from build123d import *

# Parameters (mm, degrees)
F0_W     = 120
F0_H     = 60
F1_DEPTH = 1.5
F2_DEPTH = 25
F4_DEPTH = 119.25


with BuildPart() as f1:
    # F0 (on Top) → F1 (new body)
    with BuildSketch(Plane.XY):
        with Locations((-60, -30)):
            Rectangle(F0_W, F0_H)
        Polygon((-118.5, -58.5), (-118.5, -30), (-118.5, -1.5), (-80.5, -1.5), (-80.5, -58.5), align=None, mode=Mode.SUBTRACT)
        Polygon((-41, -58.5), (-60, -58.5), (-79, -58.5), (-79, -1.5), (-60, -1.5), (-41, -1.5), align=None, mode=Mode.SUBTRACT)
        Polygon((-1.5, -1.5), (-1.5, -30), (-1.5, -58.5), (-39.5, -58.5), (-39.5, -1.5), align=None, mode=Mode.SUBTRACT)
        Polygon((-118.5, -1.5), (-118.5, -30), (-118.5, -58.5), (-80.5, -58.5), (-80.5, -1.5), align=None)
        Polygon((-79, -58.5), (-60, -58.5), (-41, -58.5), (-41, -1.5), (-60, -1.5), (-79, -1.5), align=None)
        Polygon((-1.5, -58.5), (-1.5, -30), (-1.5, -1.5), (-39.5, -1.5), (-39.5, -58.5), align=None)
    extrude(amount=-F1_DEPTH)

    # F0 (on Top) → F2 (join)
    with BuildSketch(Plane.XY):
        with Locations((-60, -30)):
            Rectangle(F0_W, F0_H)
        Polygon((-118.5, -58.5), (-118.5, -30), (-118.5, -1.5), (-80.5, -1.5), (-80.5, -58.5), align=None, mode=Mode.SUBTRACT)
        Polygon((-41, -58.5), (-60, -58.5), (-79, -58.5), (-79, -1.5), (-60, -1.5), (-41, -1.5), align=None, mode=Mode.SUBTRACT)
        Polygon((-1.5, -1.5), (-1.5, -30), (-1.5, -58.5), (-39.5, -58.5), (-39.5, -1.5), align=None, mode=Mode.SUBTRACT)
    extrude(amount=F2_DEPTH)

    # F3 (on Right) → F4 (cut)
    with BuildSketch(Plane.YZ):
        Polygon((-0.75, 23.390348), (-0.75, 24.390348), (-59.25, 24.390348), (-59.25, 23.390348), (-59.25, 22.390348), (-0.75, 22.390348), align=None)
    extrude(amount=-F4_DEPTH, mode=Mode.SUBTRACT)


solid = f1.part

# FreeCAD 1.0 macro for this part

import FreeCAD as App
import Part
import Sketcher
Q = App.Units.Quantity

doc = App.newDocument("Part")
body = doc.addObject("PartDesign::Body", "Body")

# Sketch on XY plane
sketch1 = doc.addObject("Sketcher::SketchObject", "Sketch")
body.addObject(sketch1)
sketch1.AttachmentSupport = (doc.XY_Plane, [""])
sketch1.MapMode = "FlatFace"
sketch1.addGeometry(Part.LineSegment(App.Vector(-120, 0, 0), App.Vector(-120, -60, 0)), False)
sketch1.addGeometry(Part.LineSegment(App.Vector(-120, -60, 0), App.Vector(0, -60, 0)), False)
sketch1.addGeometry(Part.LineSegment(App.Vector(0, -60, 0), App.Vector(0, 0, 0)), False)
sketch1.addGeometry(Part.LineSegment(App.Vector(0, 0, 0), App.Vector(-120, 0, 0)), False)
sketch1.addConstraint(Sketcher.Constraint("Coincident", 0, 2, 1, 1))
sketch1.addConstraint(Sketcher.Constraint("Coincident", 1, 2, 2, 1))
sketch1.addConstraint(Sketcher.Constraint("Coincident", 2, 2, 3, 1))
sketch1.addConstraint(Sketcher.Constraint("Coincident", 3, 2, 0, 1))
sketch1.addConstraint(Sketcher.Constraint("Vertical", 0))
sketch1.addConstraint(Sketcher.Constraint("Horizontal", 1))
sketch1.addConstraint(Sketcher.Constraint("Vertical", 2))
sketch1.addConstraint(Sketcher.Constraint("Horizontal", 3))
sketch1.addConstraint(Sketcher.Constraint("Coincident", 2, 2, -1, 1))
sketch1.addConstraint(Sketcher.Constraint("DistanceX", 1, 1, 1, 2, Q("120 mm")))
sketch1.addConstraint(Sketcher.Constraint("DistanceY", 0, 2, 0, 1, Q("60 mm")))
pad1 = doc.addObject("PartDesign::Pad", "Pad")
body.addObject(pad1)
pad1.Profile = sketch1
pad1.Length = 1.5
pad1.Reversed = True

# Sketch on XY plane
sketch2 = doc.addObject("Sketcher::SketchObject", "Sketch001")
body.addObject(sketch2)
sketch2.AttachmentSupport = (doc.XY_Plane, [""])
sketch2.MapMode = "FlatFace"
sketch2.addGeometry(Part.LineSegment(App.Vector(-120, 0, 0), App.Vector(-120, -60, 0)), False)
sketch2.addGeometry(Part.LineSegment(App.Vector(-120, -60, 0), App.Vector(0, -60, 0)), False)
sketch2.addGeometry(Part.LineSegment(App.Vector(0, -60, 0), App.Vector(0, 0, 0)), False)
sketch2.addGeometry(Part.LineSegment(App.Vector(0, 0, 0), App.Vector(-120, 0, 0)), False)
sketch2.addGeometry(Part.LineSegment(App.Vector(-80, -58, 0), App.Vector(-118, -58, 0)), False)
sketch2.addGeometry(Part.LineSegment(App.Vector(-118, -58, 0), App.Vector(-118, -2, 0)), False)
sketch2.addGeometry(Part.LineSegment(App.Vector(-118, -2, 0), App.Vector(-80, -2, 0)), False)
sketch2.addGeometry(Part.LineSegment(App.Vector(-80, -2, 0), App.Vector(-80, -58, 0)), False)
sketch2.addGeometry(Part.LineSegment(App.Vector(-41, -2, 0), App.Vector(-41, -58, 0)), False)
sketch2.addGeometry(Part.LineSegment(App.Vector(-41, -58, 0), App.Vector(-79, -58, 0)), False)
sketch2.addGeometry(Part.LineSegment(App.Vector(-79, -58, 0), App.Vector(-79, -2, 0)), False)
sketch2.addGeometry(Part.LineSegment(App.Vector(-79, -2, 0), App.Vector(-41, -2, 0)), False)
sketch2.addGeometry(Part.LineSegment(App.Vector(-40, -2, 0), App.Vector(-2, -2, 0)), False)
sketch2.addGeometry(Part.LineSegment(App.Vector(-2, -2, 0), App.Vector(-2, -58, 0)), False)
sketch2.addGeometry(Part.LineSegment(App.Vector(-2, -58, 0), App.Vector(-40, -58, 0)), False)
sketch2.addGeometry(Part.LineSegment(App.Vector(-40, -58, 0), App.Vector(-40, -2, 0)), False)
sketch2.addConstraint(Sketcher.Constraint("Coincident", 0, 2, 1, 1))
sketch2.addConstraint(Sketcher.Constraint("Coincident", 1, 2, 2, 1))
sketch2.addConstraint(Sketcher.Constraint("Coincident", 2, 2, 3, 1))
sketch2.addConstraint(Sketcher.Constraint("Coincident", 3, 2, 0, 1))
sketch2.addConstraint(Sketcher.Constraint("Coincident", 4, 2, 5, 1))
sketch2.addConstraint(Sketcher.Constraint("Coincident", 5, 2, 6, 1))
sketch2.addConstraint(Sketcher.Constraint("Coincident", 6, 2, 7, 1))
sketch2.addConstraint(Sketcher.Constraint("Coincident", 7, 2, 4, 1))
sketch2.addConstraint(Sketcher.Constraint("Coincident", 8, 2, 9, 1))
sketch2.addConstraint(Sketcher.Constraint("Coincident", 9, 2, 10, 1))
sketch2.addConstraint(Sketcher.Constraint("Coincident", 10, 2, 11, 1))
sketch2.addConstraint(Sketcher.Constraint("Coincident", 11, 2, 8, 1))
sketch2.addConstraint(Sketcher.Constraint("Coincident", 12, 2, 13, 1))
sketch2.addConstraint(Sketcher.Constraint("Coincident", 13, 2, 14, 1))
sketch2.addConstraint(Sketcher.Constraint("Coincident", 14, 2, 15, 1))
sketch2.addConstraint(Sketcher.Constraint("Coincident", 15, 2, 12, 1))
sketch2.addConstraint(Sketcher.Constraint("Vertical", 0))
sketch2.addConstraint(Sketcher.Constraint("Horizontal", 1))
sketch2.addConstraint(Sketcher.Constraint("Vertical", 2))
sketch2.addConstraint(Sketcher.Constraint("Horizontal", 3))
sketch2.addConstraint(Sketcher.Constraint("Horizontal", 4))
sketch2.addConstraint(Sketcher.Constraint("Vertical", 5))
sketch2.addConstraint(Sketcher.Constraint("Horizontal", 6))
sketch2.addConstraint(Sketcher.Constraint("Vertical", 7))
sketch2.addConstraint(Sketcher.Constraint("Vertical", 8))
sketch2.addConstraint(Sketcher.Constraint("Horizontal", 9))
sketch2.addConstraint(Sketcher.Constraint("Vertical", 10))
sketch2.addConstraint(Sketcher.Constraint("Horizontal", 11))
sketch2.addConstraint(Sketcher.Constraint("Horizontal", 12))
sketch2.addConstraint(Sketcher.Constraint("Vertical", 13))
sketch2.addConstraint(Sketcher.Constraint("Horizontal", 14))
sketch2.addConstraint(Sketcher.Constraint("Vertical", 15))
sketch2.addConstraint(Sketcher.Constraint("Coincident", 2, 2, -1, 1))
sketch2.addConstraint(Sketcher.Constraint("Horizontal", 7, 2, 8, 2))
sketch2.addConstraint(Sketcher.Constraint("Horizontal", 6, 2, 10, 2))
sketch2.addConstraint(Sketcher.Constraint("Horizontal", 11, 2, 12, 2))
sketch2.addConstraint(Sketcher.Constraint("Horizontal", 9, 2, 13, 2))
sketch2.addConstraint(Sketcher.Constraint("Equal", 6, 9))
sketch2.addConstraint(Sketcher.Constraint("Equal", 11, 12))
sketch2.addConstraint(Sketcher.Constraint("DistanceX", 1, 1, 1, 2, Q("120 mm")))
sketch2.addConstraint(Sketcher.Constraint("DistanceX", 4, 2, 4, 1, Q("38 mm")))
sketch2.addConstraint(Sketcher.Constraint("DistanceY", 0, 2, 0, 1, Q("60 mm")))
sketch2.addConstraint(Sketcher.Constraint("DistanceY", 5, 1, 5, 2, Q("57 mm")))
sketch2.addConstraint(Sketcher.Constraint("DistanceX", 8, 2, -1, 1, Q("41 mm")))
sketch2.addConstraint(Sketcher.Constraint("DistanceX", 7, 2, 14, 2, Q("41 mm")))
sketch2.addConstraint(Sketcher.Constraint("DistanceX", 4, 2, -1, 1, Q("118.5 mm")))
sketch2.addConstraint(Sketcher.Constraint("DistanceY", 4, 2, -1, 1, Q("58.5 mm")))
pad2 = doc.addObject("PartDesign::Pad", "Pad001")
body.addObject(pad2)
pad2.Profile = sketch2
pad2.Length = 25

# Sketch on YZ plane
sketch3 = doc.addObject("Sketcher::SketchObject", "Sketch002")
body.addObject(sketch3)
sketch3.AttachmentSupport = (doc.YZ_Plane, [""])
sketch3.MapMode = "FlatFace"
sketch3.addGeometry(Part.LineSegment(App.Vector(-0.8, 24.4, 0), App.Vector(-59.2, 24.4, 0)), False)
sketch3.addGeometry(Part.LineSegment(App.Vector(-59.2, 24.4, 0), App.Vector(-59.2, 22.4, 0)), False)
sketch3.addGeometry(Part.LineSegment(App.Vector(-59.2, 22.4, 0), App.Vector(-0.8, 22.4, 0)), False)
sketch3.addGeometry(Part.LineSegment(App.Vector(-0.8, 22.4, 0), App.Vector(-0.8, 24.4, 0)), False)
sketch3.addConstraint(Sketcher.Constraint("Coincident", 0, 2, 1, 1))
sketch3.addConstraint(Sketcher.Constraint("Coincident", 1, 2, 2, 1))
sketch3.addConstraint(Sketcher.Constraint("Coincident", 2, 2, 3, 1))
sketch3.addConstraint(Sketcher.Constraint("Coincident", 3, 2, 0, 1))
sketch3.addConstraint(Sketcher.Constraint("Horizontal", 0))
sketch3.addConstraint(Sketcher.Constraint("Vertical", 1))
sketch3.addConstraint(Sketcher.Constraint("Horizontal", 2))
sketch3.addConstraint(Sketcher.Constraint("Vertical", 3))
sketch3.addConstraint(Sketcher.Constraint("DistanceY", 1, 2, 1, 1, Q("2 mm")))
sketch3.addConstraint(Sketcher.Constraint("DistanceX", 0, 2, 0, 1, Q("58.5 mm")))
sketch3.addConstraint(Sketcher.Constraint("DistanceX", 0, 2, -1, 1, Q("59.25 mm")))
sketch3.addConstraint(Sketcher.Constraint("DistanceY", -1, 1, 0, 2, Q("24.390348 mm")))
pocket1 = doc.addObject("PartDesign::Pocket", "Pocket")
body.addObject(pocket1)
pocket1.Profile = sketch3
pocket1.Length = 119.25

doc.recompute()
